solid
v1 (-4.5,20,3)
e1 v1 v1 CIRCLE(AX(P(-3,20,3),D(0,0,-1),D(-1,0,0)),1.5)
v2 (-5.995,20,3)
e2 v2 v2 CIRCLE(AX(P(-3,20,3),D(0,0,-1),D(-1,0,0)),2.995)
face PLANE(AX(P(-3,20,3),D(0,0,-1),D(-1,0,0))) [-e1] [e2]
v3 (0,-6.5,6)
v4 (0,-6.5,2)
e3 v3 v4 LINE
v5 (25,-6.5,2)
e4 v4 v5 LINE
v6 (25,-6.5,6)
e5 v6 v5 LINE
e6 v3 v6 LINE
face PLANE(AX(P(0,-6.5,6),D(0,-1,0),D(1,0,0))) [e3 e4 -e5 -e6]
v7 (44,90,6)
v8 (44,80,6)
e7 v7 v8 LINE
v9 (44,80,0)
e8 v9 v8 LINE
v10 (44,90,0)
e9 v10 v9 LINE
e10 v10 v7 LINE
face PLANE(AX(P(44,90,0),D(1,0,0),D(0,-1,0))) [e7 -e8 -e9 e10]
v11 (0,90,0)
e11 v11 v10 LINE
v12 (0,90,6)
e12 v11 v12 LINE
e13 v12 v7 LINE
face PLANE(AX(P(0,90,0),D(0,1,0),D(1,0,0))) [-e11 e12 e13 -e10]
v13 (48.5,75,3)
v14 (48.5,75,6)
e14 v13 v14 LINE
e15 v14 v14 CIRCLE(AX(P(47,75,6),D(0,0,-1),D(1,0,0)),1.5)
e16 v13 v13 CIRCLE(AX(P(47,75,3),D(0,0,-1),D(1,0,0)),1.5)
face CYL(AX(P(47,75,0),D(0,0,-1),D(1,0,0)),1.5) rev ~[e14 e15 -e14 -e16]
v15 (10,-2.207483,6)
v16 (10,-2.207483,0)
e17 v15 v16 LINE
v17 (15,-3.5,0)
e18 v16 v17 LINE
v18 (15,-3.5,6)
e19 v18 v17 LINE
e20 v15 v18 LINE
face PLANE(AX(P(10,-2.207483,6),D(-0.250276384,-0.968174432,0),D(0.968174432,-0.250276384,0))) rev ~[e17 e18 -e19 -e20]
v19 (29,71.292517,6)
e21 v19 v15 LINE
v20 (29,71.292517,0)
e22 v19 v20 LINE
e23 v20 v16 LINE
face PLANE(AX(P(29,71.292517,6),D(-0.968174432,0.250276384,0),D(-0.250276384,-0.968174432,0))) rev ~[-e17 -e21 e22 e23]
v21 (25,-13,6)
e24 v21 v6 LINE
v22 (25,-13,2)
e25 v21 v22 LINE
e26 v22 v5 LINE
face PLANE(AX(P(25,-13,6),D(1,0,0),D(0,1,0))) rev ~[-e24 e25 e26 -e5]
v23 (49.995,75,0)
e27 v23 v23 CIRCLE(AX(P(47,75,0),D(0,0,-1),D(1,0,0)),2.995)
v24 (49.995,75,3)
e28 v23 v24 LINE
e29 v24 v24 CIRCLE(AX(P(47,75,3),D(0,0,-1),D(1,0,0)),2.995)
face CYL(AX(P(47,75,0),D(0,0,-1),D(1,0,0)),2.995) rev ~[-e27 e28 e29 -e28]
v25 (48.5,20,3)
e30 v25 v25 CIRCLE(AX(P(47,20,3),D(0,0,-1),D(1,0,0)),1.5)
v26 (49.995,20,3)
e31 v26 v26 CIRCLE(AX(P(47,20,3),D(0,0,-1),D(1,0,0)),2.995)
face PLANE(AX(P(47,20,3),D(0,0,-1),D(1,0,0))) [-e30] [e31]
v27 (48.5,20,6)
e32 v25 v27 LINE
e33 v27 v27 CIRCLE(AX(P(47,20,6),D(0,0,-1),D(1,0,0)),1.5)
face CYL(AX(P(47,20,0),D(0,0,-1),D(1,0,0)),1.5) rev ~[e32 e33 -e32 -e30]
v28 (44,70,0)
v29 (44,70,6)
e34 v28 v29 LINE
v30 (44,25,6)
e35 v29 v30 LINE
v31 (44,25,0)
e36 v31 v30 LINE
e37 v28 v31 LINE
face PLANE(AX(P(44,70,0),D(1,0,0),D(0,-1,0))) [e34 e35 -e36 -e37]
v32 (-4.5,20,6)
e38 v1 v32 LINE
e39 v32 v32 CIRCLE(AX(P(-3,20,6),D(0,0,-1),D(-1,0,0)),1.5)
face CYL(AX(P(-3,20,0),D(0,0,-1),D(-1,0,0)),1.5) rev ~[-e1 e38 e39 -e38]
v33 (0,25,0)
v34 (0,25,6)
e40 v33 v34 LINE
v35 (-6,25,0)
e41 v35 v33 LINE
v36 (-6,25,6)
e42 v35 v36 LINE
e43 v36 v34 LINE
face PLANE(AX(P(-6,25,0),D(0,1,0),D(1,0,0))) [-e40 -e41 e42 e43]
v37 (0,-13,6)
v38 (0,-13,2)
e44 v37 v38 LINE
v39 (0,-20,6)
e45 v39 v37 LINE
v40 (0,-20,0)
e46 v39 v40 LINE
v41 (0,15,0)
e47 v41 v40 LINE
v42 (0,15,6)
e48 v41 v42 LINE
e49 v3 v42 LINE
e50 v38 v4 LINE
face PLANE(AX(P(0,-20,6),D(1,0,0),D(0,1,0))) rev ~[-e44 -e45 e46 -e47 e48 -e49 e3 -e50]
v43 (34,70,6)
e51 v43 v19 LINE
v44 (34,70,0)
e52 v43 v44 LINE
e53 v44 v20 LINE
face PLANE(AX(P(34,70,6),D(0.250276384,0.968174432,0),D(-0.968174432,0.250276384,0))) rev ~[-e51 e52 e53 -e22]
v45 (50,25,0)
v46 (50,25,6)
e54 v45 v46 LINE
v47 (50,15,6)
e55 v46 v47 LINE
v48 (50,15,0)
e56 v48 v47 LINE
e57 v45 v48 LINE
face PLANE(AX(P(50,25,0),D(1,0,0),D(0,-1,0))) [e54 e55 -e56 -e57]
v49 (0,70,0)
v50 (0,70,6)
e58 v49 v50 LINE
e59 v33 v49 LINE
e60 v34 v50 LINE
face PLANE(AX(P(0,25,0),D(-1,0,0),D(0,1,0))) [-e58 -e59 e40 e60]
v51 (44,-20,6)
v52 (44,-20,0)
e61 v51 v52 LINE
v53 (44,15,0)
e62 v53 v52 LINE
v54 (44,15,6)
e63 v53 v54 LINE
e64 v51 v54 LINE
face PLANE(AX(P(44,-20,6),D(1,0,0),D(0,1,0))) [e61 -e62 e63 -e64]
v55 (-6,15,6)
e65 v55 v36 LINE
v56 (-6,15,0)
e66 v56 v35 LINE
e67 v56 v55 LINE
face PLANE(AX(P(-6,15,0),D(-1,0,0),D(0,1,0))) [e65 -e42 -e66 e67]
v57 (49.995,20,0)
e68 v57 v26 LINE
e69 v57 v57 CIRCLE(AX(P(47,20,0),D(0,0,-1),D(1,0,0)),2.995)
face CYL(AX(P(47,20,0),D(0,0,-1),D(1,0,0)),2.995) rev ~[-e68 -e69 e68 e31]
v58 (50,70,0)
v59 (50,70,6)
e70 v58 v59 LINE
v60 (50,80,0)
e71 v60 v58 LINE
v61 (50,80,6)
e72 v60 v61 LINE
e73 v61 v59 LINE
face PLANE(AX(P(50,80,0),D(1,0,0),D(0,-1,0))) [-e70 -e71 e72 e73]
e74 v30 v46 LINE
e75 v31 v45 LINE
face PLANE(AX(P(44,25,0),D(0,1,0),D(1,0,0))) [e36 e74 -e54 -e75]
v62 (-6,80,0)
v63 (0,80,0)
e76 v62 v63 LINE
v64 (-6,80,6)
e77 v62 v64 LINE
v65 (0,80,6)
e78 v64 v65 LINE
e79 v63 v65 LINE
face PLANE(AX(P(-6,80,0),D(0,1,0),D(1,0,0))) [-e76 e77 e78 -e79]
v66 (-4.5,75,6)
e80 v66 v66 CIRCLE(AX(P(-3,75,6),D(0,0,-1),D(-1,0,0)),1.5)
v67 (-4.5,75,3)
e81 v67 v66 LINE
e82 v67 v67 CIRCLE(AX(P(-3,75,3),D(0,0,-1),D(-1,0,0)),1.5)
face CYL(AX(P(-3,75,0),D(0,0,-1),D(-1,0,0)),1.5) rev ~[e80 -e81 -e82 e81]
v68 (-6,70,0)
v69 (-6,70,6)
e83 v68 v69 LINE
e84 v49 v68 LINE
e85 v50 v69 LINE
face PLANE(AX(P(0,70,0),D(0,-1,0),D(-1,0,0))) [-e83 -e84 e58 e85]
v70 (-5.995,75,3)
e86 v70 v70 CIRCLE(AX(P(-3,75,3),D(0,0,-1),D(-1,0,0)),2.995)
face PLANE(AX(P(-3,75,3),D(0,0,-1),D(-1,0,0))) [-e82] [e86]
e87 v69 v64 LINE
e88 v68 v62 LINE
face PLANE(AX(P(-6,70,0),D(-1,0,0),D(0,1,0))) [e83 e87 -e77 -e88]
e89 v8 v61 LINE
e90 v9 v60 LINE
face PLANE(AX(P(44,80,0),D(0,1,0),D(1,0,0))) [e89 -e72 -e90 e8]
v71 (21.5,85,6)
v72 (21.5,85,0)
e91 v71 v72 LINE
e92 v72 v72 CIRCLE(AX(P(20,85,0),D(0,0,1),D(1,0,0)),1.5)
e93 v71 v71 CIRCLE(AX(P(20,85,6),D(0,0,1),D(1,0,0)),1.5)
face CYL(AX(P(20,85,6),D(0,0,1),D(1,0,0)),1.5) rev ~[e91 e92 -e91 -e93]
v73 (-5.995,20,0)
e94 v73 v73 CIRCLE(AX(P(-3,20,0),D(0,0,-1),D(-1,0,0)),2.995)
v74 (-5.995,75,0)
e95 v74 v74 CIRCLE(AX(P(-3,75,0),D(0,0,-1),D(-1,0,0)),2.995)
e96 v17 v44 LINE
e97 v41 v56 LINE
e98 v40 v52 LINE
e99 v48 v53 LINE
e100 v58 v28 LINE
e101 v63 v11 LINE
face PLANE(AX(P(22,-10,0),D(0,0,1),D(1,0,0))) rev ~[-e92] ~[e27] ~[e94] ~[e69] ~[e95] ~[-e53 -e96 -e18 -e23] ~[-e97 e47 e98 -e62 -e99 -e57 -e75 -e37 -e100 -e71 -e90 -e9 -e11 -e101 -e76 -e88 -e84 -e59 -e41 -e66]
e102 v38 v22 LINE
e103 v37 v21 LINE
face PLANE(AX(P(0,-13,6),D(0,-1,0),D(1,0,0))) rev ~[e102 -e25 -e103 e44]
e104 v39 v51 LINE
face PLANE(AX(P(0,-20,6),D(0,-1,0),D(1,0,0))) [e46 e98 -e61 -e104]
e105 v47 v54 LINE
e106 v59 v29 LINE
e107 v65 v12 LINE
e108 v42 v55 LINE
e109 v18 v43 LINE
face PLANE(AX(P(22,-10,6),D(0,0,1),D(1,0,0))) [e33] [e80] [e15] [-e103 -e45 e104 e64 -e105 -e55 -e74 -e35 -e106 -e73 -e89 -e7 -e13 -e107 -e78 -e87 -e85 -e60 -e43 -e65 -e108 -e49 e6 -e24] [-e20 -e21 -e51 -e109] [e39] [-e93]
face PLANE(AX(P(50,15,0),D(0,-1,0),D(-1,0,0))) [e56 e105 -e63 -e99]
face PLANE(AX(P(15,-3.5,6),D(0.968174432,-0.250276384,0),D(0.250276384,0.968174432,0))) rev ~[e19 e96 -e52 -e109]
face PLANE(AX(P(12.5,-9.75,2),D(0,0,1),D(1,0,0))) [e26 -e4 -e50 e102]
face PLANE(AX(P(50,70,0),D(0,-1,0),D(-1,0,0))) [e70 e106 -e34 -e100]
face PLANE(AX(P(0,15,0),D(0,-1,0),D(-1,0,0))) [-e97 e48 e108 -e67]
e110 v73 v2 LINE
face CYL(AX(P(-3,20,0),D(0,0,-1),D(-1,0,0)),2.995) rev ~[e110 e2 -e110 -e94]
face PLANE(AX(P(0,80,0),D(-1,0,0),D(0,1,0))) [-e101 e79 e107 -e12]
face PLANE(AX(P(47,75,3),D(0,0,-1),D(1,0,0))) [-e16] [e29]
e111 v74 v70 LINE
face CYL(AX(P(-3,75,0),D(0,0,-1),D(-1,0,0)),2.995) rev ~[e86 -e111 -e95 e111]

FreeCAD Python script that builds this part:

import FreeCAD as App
import Part
import Sketcher

doc = App.newDocument("Part")
body = doc.addObject("PartDesign::Body", "Body")

# Sketch on XY plane
sketch1 = body.newObject("Sketcher::SketchObject", "Sketch")
sketch1.AttachmentSupport = (doc.getObject("XY_Plane"), [""])
sketch1.MapMode = "FlatFace"
sketch1.addGeometry([
    Part.LineSegment(App.Vector(0, 90, 0), App.Vector(0, 80, 0)),  # 0
    Part.LineSegment(App.Vector(0, 80, 0), App.Vector(-6, 80, 0)),  # 1
    Part.LineSegment(App.Vector(-6, 80, 0), App.Vector(-6, 70, 0)),  # 2
    Part.LineSegment(App.Vector(-6, 70, 0), App.Vector(0, 70, 0)),  # 3
    Part.LineSegment(App.Vector(0, 70, 0), App.Vector(0, 25, 0)),  # 4
    Part.LineSegment(App.Vector(0, 25, 0), App.Vector(-6, 25, 0)),  # 5
    Part.LineSegment(App.Vector(-6, 25, 0), App.Vector(-6, 15, 0)),  # 6
    Part.LineSegment(App.Vector(-6, 15, 0), App.Vector(0, 15, 0)),  # 7
    Part.LineSegment(App.Vector(0, 15, 0), App.Vector(0, 0, 0)),  # 8
    Part.LineSegment(App.Vector(0, 0, 0), App.Vector(44, 0, 0)),  # 9
    Part.LineSegment(App.Vector(44, 0, 0), App.Vector(44, 15, 0)),  # 10
    Part.LineSegment(App.Vector(44, 15, 0), App.Vector(50, 15, 0)),  # 11
    Part.LineSegment(App.Vector(50, 15, 0), App.Vector(50, 25, 0)),  # 12
    Part.LineSegment(App.Vector(50, 25, 0), App.Vector(44, 25, 0)),  # 13
    Part.LineSegment(App.Vector(44, 25, 0), App.Vector(44, 70, 0)),  # 14
    Part.LineSegment(App.Vector(44, 70, 0), App.Vector(50, 70, 0)),  # 15
    Part.LineSegment(App.Vector(50, 70, 0), App.Vector(50, 80, 0)),  # 16
    Part.LineSegment(App.Vector(50, 80, 0), App.Vector(44, 80, 0)),  # 17
    Part.LineSegment(App.Vector(44, 80, 0), App.Vector(44, 90, 0)),  # 18
    Part.LineSegment(App.Vector(44, 90, 0), App.Vector(0, 90, 0)),  # 19
], False)
sketch1.addConstraint([
    Sketcher.Constraint("Coincident", 0, 2, 1, 1),
    Sketcher.Constraint("Coincident", 1, 2, 2, 1),
    Sketcher.Constraint("Coincident", 2, 2, 3, 1),
    Sketcher.Constraint("Coincident", 3, 2, 4, 1),
    Sketcher.Constraint("Coincident", 4, 2, 5, 1),
    Sketcher.Constraint("Coincident", 5, 2, 6, 1),
    Sketcher.Constraint("Coincident", 6, 2, 7, 1),
    Sketcher.Constraint("Coincident", 7, 2, 8, 1),
    Sketcher.Constraint("Coincident", 8, 2, 9, 1),
    Sketcher.Constraint("Coincident", 9, 2, 10, 1),
    Sketcher.Constraint("Coincident", 10, 2, 11, 1),
    Sketcher.Constraint("Coincident", 11, 2, 12, 1),
    Sketcher.Constraint("Coincident", 12, 2, 13, 1),
    Sketcher.Constraint("Coincident", 13, 2, 14, 1),
    Sketcher.Constraint("Coincident", 14, 2, 15, 1),
    Sketcher.Constraint("Coincident", 15, 2, 16, 1),
    Sketcher.Constraint("Coincident", 16, 2, 17, 1),
    Sketcher.Constraint("Coincident", 17, 2, 18, 1),
    Sketcher.Constraint("Coincident", 18, 2, 19, 1),
    Sketcher.Constraint("Coincident", 19, 2, 0, 1),
    Sketcher.Constraint("Vertical", 0),
    Sketcher.Constraint("Horizontal", 1),
    Sketcher.Constraint("Vertical", 2),
    Sketcher.Constraint("Horizontal", 3),
    Sketcher.Constraint("Vertical", 4),
    Sketcher.Constraint("Horizontal", 5),
    Sketcher.Constraint("Vertical", 6),
    Sketcher.Constraint("Horizontal", 7),
    Sketcher.Constraint("Vertical", 8),
    Sketcher.Constraint("Horizontal", 9),
    Sketcher.Constraint("Vertical", 10),
    Sketcher.Constraint("Horizontal", 11),
    Sketcher.Constraint("Vertical", 12),
    Sketcher.Constraint("Horizontal", 13),
    Sketcher.Constraint("Vertical", 14),
    Sketcher.Constraint("Horizontal", 15),
    Sketcher.Constraint("Vertical", 16),
    Sketcher.Constraint("Horizontal", 17),
    Sketcher.Constraint("Vertical", 18),
    Sketcher.Constraint("Horizontal", 19),
    Sketcher.Constraint("Coincident", 8, 2, -1, 1),
    Sketcher.Constraint("PointOnObject", 0, 2, -2),
    Sketcher.Constraint("PointOnObject", 3, 2, -2),
    Sketcher.Constraint("Horizontal", 7, 2, 10, 2),
    Sketcher.Constraint("Horizontal", 5, 2, 12, 2),
    Sketcher.Constraint("Horizontal", 3, 2, 14, 2),
    Sketcher.Constraint("Horizontal", 1, 2, 16, 2),
    Sketcher.Constraint("Vertical", 2, 2, 5, 2),
    Sketcher.Constraint("Vertical", 10, 2, 13, 2),
    Sketcher.Constraint("Vertical", 12, 2, 15, 2),
    Sketcher.Constraint("Vertical", 14, 2, 17, 2),
    Sketcher.Constraint("Equal", 7, 11),
    Sketcher.Constraint("Equal", 0, 2),
    Sketcher.Constraint("Equal", 2, 6),
    Sketcher.Constraint("DistanceX", 1, 2, 1, 1, 6.0),
    Sketcher.Constraint("DistanceX", 9, 1, 9, 2, 44.0),
    Sketcher.Constraint("DistanceY", 0, 2, 0, 1, 10.0),
    Sketcher.Constraint("DistanceY", 4, 2, 4, 1, 45.0),
    Sketcher.Constraint("DistanceY", 8, 2, 8, 1, 15.0),
])
pad1 = body.newObject("PartDesign::Pad", "Pad")
pad1.Profile = sketch1
pad1.Length = 6

# Sketch on XY plane
sketch2 = body.newObject("Sketcher::SketchObject", "Sketch001")
sketch2.AttachmentSupport = (doc.getObject("XY_Plane"), [""])
sketch2.MapMode = "FlatFace"
sketch2.AttachmentOffset = App.Placement(App.Vector(0, 0, 6), App.Rotation())
sketch2.addGeometry(Part.Circle(App.Vector(20, 85, 0), App.Vector(0, 0, 1), 1.5), False)
sketch2.addConstraint([
    Sketcher.Constraint("Diameter", 0, 3.0),
    Sketcher.Constraint("DistanceX", -1, 1, 0, 3, 20.0),
    Sketcher.Constraint("DistanceY", -1, 1, 0, 3, 85.0),
])
pocket1 = body.newObject("PartDesign::Pocket", "Pocket")
pocket1.Profile = sketch2
pocket1.Length = 6

# Sketch on XY plane
sketch3 = body.newObject("Sketcher::SketchObject", "Sketch002")
sketch3.AttachmentSupport = (doc.getObject("XY_Plane"), [""])
sketch3.MapMode = "FlatFace"
sketch3.addGeometry([
    Part.Circle(App.Vector(-3, 75, 0), App.Vector(0, 0, 1), 1.5),
    Part.Circle(App.Vector(-3, 20, 0), App.Vector(0, 0, 1), 1.5),
    Part.Circle(App.Vector(47, 20, 0), App.Vector(0, 0, 1), 1.5),
    Part.Circle(App.Vector(47, 75, 0), App.Vector(0, 0, 1), 1.5),
], False)
sketch3.addConstraint([
    Sketcher.Constraint("Equal", 0, 1),
    Sketcher.Constraint("Equal", 1, 2),
    Sketcher.Constraint("Equal", 2, 3),
    Sketcher.Constraint("Horizontal", 1, 3, 2, 3),
    Sketcher.Constraint("Horizontal", 0, 3, 3, 3),
    Sketcher.Constraint("Vertical", 0, 3, 1, 3),
    Sketcher.Constraint("Vertical", 2, 3, 3, 3),
    Sketcher.Constraint("Diameter", 0, 3.0),
    Sketcher.Constraint("DistanceX", 0, 3, -1, 1, 3.0),
    Sketcher.Constraint("DistanceY", -1, 1, 0, 3, 75.0),
    Sketcher.Constraint("DistanceY", -1, 1, 1, 3, 20.0),
    Sketcher.Constraint("DistanceX", -1, 1, 2, 3, 47.0),
])
pocket2 = body.newObject("PartDesign::Pocket", "Pocket001")
pocket2.Profile = sketch3
pocket2.Length = 6
pocket2.Reversed = True

# Sketch on XY plane
sketch4 = body.newObject("Sketcher::SketchObject", "Sketch003")
sketch4.AttachmentSupport = (doc.getObject("XY_Plane"), [""])
sketch4.MapMode = "FlatFace"
sketch4.addGeometry([
    Part.Circle(App.Vector(-3, 20, 0), App.Vector(0, 0, 1), 3),
    Part.Circle(App.Vector(-3, 75, 0), App.Vector(0, 0, 1), 3),
    Part.Circle(App.Vector(47, 75, 0), App.Vector(0, 0, 1), 3),
    Part.Circle(App.Vector(47, 20, 0), App.Vector(0, 0, 1), 3),
], False)
sketch4.addConstraint([
    Sketcher.Constraint("Equal", 0, 1),
    Sketcher.Constraint("Equal", 1, 2),
    Sketcher.Constraint("Equal", 2, 3),
    Sketcher.Constraint("Horizontal", 1, 3, 2, 3),
    Sketcher.Constraint("Horizontal", 0, 3, 3, 3),
    Sketcher.Constraint("Vertical", 0, 3, 1, 3),
    Sketcher.Constraint("Vertical", 2, 3, 3, 3),
    Sketcher.Constraint("Diameter", 0, 5.99),
    Sketcher.Constraint("DistanceX", 0, 3, -1, 1, 3.0),
    Sketcher.Constraint("DistanceY", -1, 1, 0, 3, 20.0),
    Sketcher.Constraint("DistanceY", -1, 1, 1, 3, 75.0),
    Sketcher.Constraint("DistanceX", -1, 1, 2, 3, 47.0),
])
pocket3 = body.newObject("PartDesign::Pocket", "Pocket002")
pocket3.Profile = sketch4
pocket3.Length = 3
pocket3.Reversed = True

# Sketch on XY plane
sketch5 = body.newObject("Sketcher::SketchObject", "Sketch004")
sketch5.AttachmentSupport = (doc.getObject("XY_Plane"), [""])
sketch5.MapMode = "FlatFace"
sketch5.AttachmentOffset = App.Placement(App.Vector(0, 0, 6), App.Rotation())
sketch5.addGeometry([
    Part.LineSegment(App.Vector(0, 0, 0), App.Vector(0, -20, 0)),
    Part.LineSegment(App.Vector(0, -20, 0), App.Vector(44, -20, 0)),
    Part.LineSegment(App.Vector(44, -20, 0), App.Vector(44, 0, 0)),
    Part.LineSegment(App.Vector(44, 0, 0), App.Vector(0, 0, 0)),
], False)
sketch5.addConstraint([
    Sketcher.Constraint("Coincident", 0, 2, 1, 1),
    Sketcher.Constraint("Coincident", 1, 2, 2, 1),
    Sketcher.Constraint("Coincident", 2, 2, 3, 1),
    Sketcher.Constraint("Coincident", 3, 2, 0, 1),
    Sketcher.Constraint("Vertical", 0),
    Sketcher.Constraint("Horizontal", 1),
    Sketcher.Constraint("Vertical", 2),
    Sketcher.Constraint("Horizontal", 3),
    Sketcher.Constraint("Coincident", 3, 2, -1, 1),
    Sketcher.Constraint("DistanceX", 1, 1, 1, 2, 44.0),
    Sketcher.Constraint("DistanceY", 0, 2, 0, 1, 20.0),
])
pad2 = body.newObject("PartDesign::Pad", "Pad001")
pad2.Profile = sketch5
pad2.Length = 6
pad2.Reversed = True

# Sketch on XY plane
sketch6 = body.newObject("Sketcher::SketchObject", "Sketch005")
sketch6.AttachmentSupport = (doc.getObject("XY_Plane"), [""])
sketch6.MapMode = "FlatFace"
sketch6.AttachmentOffset = App.Placement(App.Vector(0, 0, 6), App.Rotation())
sketch6.addGeometry([
    Part.LineSegment(App.Vector(0, -6, 0), App.Vector(0, -13, 0)),
    Part.LineSegment(App.Vector(0, -13, 0), App.Vector(25, -13, 0)),
    Part.LineSegment(App.Vector(25, -13, 0), App.Vector(25, -6, 0)),
    Part.LineSegment(App.Vector(25, -6, 0), App.Vector(0, -6, 0)),
], False)
sketch6.addConstraint([
    Sketcher.Constraint("Coincident", 0, 2, 1, 1),
    Sketcher.Constraint("Coincident", 1, 2, 2, 1),
    Sketcher.Constraint("Coincident", 2, 2, 3, 1),
    Sketcher.Constraint("Coincident", 3, 2, 0, 1),
    Sketcher.Constraint("Vertical", 0),
    Sketcher.Constraint("Horizontal", 1),
    Sketcher.Constraint("Vertical", 2),
    Sketcher.Constraint("Horizontal", 3),
    Sketcher.Constraint("PointOnObject", 0, 2, -2),
    Sketcher.Constraint("DistanceX", 1, 1, 1, 2, 25.0),
    Sketcher.Constraint("DistanceY", 0, 2, 0, 1, 6.5),
    Sketcher.Constraint("DistanceY", 0, 2, -1, 1, 13.0),
])
pocket4 = body.newObject("PartDesign::Pocket", "Pocket003")
pocket4.Profile = sketch6
pocket4.Length = 4

# Sketch on XY plane
sketch7 = body.newObject("Sketcher::SketchObject", "Sketch006")
sketch7.AttachmentSupport = (doc.getObject("XY_Plane"), [""])
sketch7.MapMode = "FlatFace"
sketch7.AttachmentOffset = App.Placement(App.Vector(0, 0, 6), App.Rotation())
sketch7.addGeometry([
    Part.LineSegment(App.Vector(29, 71, 0), App.Vector(10, -2, 0)),
    Part.LineSegment(App.Vector(10, -2, 0), App.Vector(15, -4, 0)),
    Part.LineSegment(App.Vector(15, -4, 0), App.Vector(34, 70, 0)),
    Part.LineSegment(App.Vector(34, 70, 0), App.Vector(29, 71, 0)),
], False)
sketch7.addConstraint([
    Sketcher.Constraint("Coincident", 0, 2, 1, 1),
    Sketcher.Constraint("Coincident", 1, 2, 2, 1),
    Sketcher.Constraint("Coincident", 2, 2, 3, 1),
    Sketcher.Constraint("Coincident", 3, 2, 0, 1),
    Sketcher.Constraint("Perpendicular", 0, 1),
    Sketcher.Constraint("Perpendicular", 1, 2),
    Sketcher.Constraint("Perpendicular", 2, 3),
    Sketcher.Constraint("DistanceX", -1, 1, 0, 2, 10.0),
    Sketcher.Constraint("DistanceX", -1, 1, 1, 2, 15.0),
    Sketcher.Constraint("DistanceX", -1, 1, 2, 2, 34.0),
    Sketcher.Constraint("DistanceY", -1, 1, 2, 2, 70.0),
    Sketcher.Constraint("DistanceY", 1, 2, -1, 1, 3.5),
])
pocket5 = body.newObject("PartDesign::Pocket", "Pocket004")
pocket5.Profile = sketch7
pocket5.Length = 6

doc.recompute()
